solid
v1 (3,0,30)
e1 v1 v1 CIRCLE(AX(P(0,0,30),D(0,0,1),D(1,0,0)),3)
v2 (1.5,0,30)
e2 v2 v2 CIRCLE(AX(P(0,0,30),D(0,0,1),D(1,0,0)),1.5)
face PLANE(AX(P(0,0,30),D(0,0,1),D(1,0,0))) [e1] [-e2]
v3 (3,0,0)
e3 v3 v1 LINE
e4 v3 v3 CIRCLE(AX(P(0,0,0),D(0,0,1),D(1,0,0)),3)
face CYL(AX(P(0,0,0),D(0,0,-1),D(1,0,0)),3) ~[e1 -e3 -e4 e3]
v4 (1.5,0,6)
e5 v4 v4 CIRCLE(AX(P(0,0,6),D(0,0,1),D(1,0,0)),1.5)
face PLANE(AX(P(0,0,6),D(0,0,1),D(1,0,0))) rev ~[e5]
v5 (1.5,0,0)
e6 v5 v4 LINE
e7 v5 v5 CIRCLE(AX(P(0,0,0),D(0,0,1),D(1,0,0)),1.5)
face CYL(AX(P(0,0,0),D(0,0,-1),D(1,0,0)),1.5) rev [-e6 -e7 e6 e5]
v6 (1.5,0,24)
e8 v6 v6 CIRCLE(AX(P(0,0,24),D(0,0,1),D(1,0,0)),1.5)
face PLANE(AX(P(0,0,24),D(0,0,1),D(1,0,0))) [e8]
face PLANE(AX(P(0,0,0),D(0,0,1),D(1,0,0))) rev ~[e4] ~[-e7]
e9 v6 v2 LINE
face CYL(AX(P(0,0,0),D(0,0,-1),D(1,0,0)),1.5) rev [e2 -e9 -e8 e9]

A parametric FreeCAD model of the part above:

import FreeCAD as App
import Part
import Sketcher
from FreeCAD import Vector

doc = App.newDocument("Part")
body = doc.addObject("PartDesign::Body", "Body")

sketch1 = body.newObject("Sketcher::SketchObject", "Sketch")
sketch1.AttachmentSupport = (doc.getObject("XY_Plane"), [""])
sketch1.MapMode = "FlatFace"
sketch1.addGeometry(Part.Circle(Vector(0, 0, 0), Vector(0, 0, 1), 3), False)
sketch1.addGeometry(Part.Circle(Vector(0, 0, 0), Vector(0, 0, 1), 1.5), False)
sketch1.addConstraint(Sketcher.Constraint("Coincident", 0, 3, -1, 1))
sketch1.addConstraint(Sketcher.Constraint("Coincident", 1, 3, -1, 1))
sketch1.addConstraint(Sketcher.Constraint("Diameter", 0, 6.0))
sketch1.addConstraint(Sketcher.Constraint("Diameter", 1, 3.0))
pad1 = body.newObject("PartDesign::Pad", "Pad")
pad1.Profile = sketch1
pad1.Length = 30

sketch2 = body.newObject("Sketcher::SketchObject", "Sketch001")
sketch2.AttachmentSupport = (doc.getObject("XY_Plane"), [""])
sketch2.MapMode = "FlatFace"
sketch2.AttachmentOffset = App.Placement(Vector(0, 0, 24), App.Rotation())
sketch2.addGeometry(Part.Circle(Vector(0, 0, 0), Vector(0, 0, 1), 1.5), False)
sketch2.addConstraint(Sketcher.Constraint("Coincident", 0, 3, -1, 1))
sketch2.addConstraint(Sketcher.Constraint("Diameter", 0, 3.0))
pad2 = body.newObject("PartDesign::Pad", "Pad001")
pad2.Profile = sketch2
pad2.Length = 18
pad2.Reversed = True

doc.recompute()
